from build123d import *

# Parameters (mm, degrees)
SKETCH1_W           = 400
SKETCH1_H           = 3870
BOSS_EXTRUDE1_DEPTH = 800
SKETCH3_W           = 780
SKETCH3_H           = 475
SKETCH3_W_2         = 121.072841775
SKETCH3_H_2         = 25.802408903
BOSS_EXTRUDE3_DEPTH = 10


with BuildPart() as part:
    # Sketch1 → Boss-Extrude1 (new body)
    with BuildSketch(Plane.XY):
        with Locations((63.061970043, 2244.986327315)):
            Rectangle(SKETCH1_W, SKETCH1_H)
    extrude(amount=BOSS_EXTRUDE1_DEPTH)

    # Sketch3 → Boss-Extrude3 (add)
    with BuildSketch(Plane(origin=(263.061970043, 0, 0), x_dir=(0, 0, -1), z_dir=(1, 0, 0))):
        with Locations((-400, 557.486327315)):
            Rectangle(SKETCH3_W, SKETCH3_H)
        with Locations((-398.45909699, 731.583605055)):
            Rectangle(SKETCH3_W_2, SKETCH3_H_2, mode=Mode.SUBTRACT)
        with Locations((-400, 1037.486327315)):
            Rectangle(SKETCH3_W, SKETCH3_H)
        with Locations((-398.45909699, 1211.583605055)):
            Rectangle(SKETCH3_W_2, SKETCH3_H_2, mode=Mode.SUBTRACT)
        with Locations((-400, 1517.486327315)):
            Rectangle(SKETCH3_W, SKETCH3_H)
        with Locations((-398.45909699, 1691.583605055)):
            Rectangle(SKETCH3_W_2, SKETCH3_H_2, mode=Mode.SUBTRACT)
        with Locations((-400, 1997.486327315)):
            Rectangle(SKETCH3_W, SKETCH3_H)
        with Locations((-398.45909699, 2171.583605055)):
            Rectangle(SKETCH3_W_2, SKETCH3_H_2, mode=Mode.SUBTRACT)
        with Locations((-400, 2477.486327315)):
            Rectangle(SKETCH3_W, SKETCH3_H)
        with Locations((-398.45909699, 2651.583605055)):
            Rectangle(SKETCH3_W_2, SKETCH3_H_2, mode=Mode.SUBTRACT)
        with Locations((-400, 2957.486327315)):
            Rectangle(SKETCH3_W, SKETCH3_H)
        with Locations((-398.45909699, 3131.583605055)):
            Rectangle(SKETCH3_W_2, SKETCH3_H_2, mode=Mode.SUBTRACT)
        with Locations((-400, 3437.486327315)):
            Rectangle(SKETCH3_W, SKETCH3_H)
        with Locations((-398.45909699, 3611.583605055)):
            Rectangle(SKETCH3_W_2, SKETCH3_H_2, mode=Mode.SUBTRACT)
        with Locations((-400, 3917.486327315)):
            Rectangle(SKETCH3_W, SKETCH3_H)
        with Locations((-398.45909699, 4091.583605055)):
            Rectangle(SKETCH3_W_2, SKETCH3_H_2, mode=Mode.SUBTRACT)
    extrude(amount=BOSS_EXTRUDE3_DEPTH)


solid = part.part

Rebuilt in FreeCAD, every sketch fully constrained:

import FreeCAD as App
import Part
import Sketcher
from FreeCAD import Vector
Q = App.Units.Quantity

doc = App.newDocument("Part")
body = doc.addObject("PartDesign::Body", "Body")

sketch1 = body.newObject("Sketcher::SketchObject", "Sketch")
sketch1.AttachmentSupport = (doc.getObject("XY_Plane"), [""])
sketch1.MapMode = "FlatFace"
sketch1.addGeometry(Part.LineSegment(Vector(-137, 4180, 0), Vector(-137, 310, 0)), False)
sketch1.addGeometry(Part.LineSegment(Vector(-137, 310, 0), Vector(263, 310, 0)), False)
sketch1.addGeometry(Part.LineSegment(Vector(263, 310, 0), Vector(263, 4180, 0)), False)
sketch1.addGeometry(Part.LineSegment(Vector(263, 4180, 0), Vector(-137, 4180, 0)), False)
sketch1.addConstraint(Sketcher.Constraint("Coincident", 0, 2, 1, 1))
sketch1.addConstraint(Sketcher.Constraint("Coincident", 1, 2, 2, 1))
sketch1.addConstraint(Sketcher.Constraint("Coincident", 2, 2, 3, 1))
sketch1.addConstraint(Sketcher.Constraint("Coincident", 3, 2, 0, 1))
sketch1.addConstraint(Sketcher.Constraint("Vertical", 0))
sketch1.addConstraint(Sketcher.Constraint("Horizontal", 1))
sketch1.addConstraint(Sketcher.Constraint("Vertical", 2))
sketch1.addConstraint(Sketcher.Constraint("Horizontal", 3))
sketch1.addConstraint(Sketcher.Constraint("DistanceX", 1, 1, 1, 2, Q("400 mm")))
sketch1.addConstraint(Sketcher.Constraint("DistanceY", 0, 2, 0, 1, Q("3870 mm")))
sketch1.addConstraint(Sketcher.Constraint("DistanceX", 0, 2, -1, 1, Q("136.93803 mm")))
sketch1.addConstraint(Sketcher.Constraint("DistanceY", -1, 1, 0, 2, Q("309.986327 mm")))
pad1 = body.newObject("PartDesign::Pad", "Pad")
pad1.Profile = sketch1
pad1.Length = 800

sketch2 = body.newObject("Sketcher::SketchObject", "Sketch001")
sketch2.AttachmentSupport = (doc.getObject("YZ_Plane"), [""])
sketch2.MapMode = "FlatFace"
sketch2.AttachmentOffset = App.Placement(Vector(0, 0, 263.06197), App.Rotation())
sketch2.addGeometry(Part.LineSegment(Vector(795, 790, 0), Vector(320, 790, 0)), False)
sketch2.addGeometry(Part.LineSegment(Vector(320, 790, 0), Vector(320, 10, 0)), False)
sketch2.addGeometry(Part.LineSegment(Vector(320, 10, 0), Vector(795, 10, 0)), False)
sketch2.addGeometry(Part.LineSegment(Vector(795, 10, 0), Vector(795, 790, 0)), False)
sketch2.addGeometry(Part.LineSegment(Vector(719, 338, 0), Vector(719, 459, 0)), False)
sketch2.addGeometry(Part.LineSegment(Vector(719, 459, 0), Vector(744, 459, 0)), False)
sketch2.addGeometry(Part.LineSegment(Vector(744, 459, 0), Vector(744, 338, 0)), False)
sketch2.addGeometry(Part.LineSegment(Vector(744, 338, 0), Vector(719, 338, 0)), False)
sketch2.addGeometry(Part.LineSegment(Vector(1275, 790, 0), Vector(800, 790, 0)), False)
sketch2.addGeometry(Part.LineSegment(Vector(800, 790, 0), Vector(800, 10, 0)), False)
sketch2.addGeometry(Part.LineSegment(Vector(800, 10, 0), Vector(1275, 10, 0)), False)
sketch2.addGeometry(Part.LineSegment(Vector(1275, 10, 0), Vector(1275, 790, 0)), False)
sketch2.addGeometry(Part.LineSegment(Vector(1199, 338, 0), Vector(1199, 459, 0)), False)
sketch2.addGeometry(Part.LineSegment(Vector(1199, 459, 0), Vector(1224, 459, 0)), False)
sketch2.addGeometry(Part.LineSegment(Vector(1224, 459, 0), Vector(1224, 338, 0)), False)
sketch2.addGeometry(Part.LineSegment(Vector(1224, 338, 0), Vector(1199, 338, 0)), False)
sketch2.addGeometry(Part.LineSegment(Vector(1755, 790, 0), Vector(1280, 790, 0)), False)
sketch2.addGeometry(Part.LineSegment(Vector(1280, 790, 0), Vector(1280, 10, 0)), False)
sketch2.addGeometry(Part.LineSegment(Vector(1280, 10, 0), Vector(1755, 10, 0)), False)
sketch2.addGeometry(Part.LineSegment(Vector(1755, 10, 0), Vector(1755, 790, 0)), False)
sketch2.addGeometry(Part.LineSegment(Vector(1679, 338, 0), Vector(1679, 459, 0)), False)
sketch2.addGeometry(Part.LineSegment(Vector(1679, 459, 0), Vector(1704, 459, 0)), False)
sketch2.addGeometry(Part.LineSegment(Vector(1704, 459, 0), Vector(1704, 338, 0)), False)
sketch2.addGeometry(Part.LineSegment(Vector(1704, 338, 0), Vector(1679, 338, 0)), False)
sketch2.addGeometry(Part.LineSegment(Vector(2235, 790, 0), Vector(1760, 790, 0)), False)
sketch2.addGeometry(Part.LineSegment(Vector(1760, 790, 0), Vector(1760, 10, 0)), False)
sketch2.addGeometry(Part.LineSegment(Vector(1760, 10, 0), Vector(2235, 10, 0)), False)
sketch2.addGeometry(Part.LineSegment(Vector(2235, 10, 0), Vector(2235, 790, 0)), False)
sketch2.addGeometry(Part.LineSegment(Vector(2159, 338, 0), Vector(2159, 459, 0)), False)
sketch2.addGeometry(Part.LineSegment(Vector(2159, 459, 0), Vector(2184, 459, 0)), False)
sketch2.addGeometry(Part.LineSegment(Vector(2184, 459, 0), Vector(2184, 338, 0)), False)
sketch2.addGeometry(Part.LineSegment(Vector(2184, 338, 0), Vector(2159, 338, 0)), False)
sketch2.addGeometry(Part.LineSegment(Vector(2715, 790, 0), Vector(2240, 790, 0)), False)
sketch2.addGeometry(Part.LineSegment(Vector(2240, 790, 0), Vector(2240, 10, 0)), False)
sketch2.addGeometry(Part.LineSegment(Vector(2240, 10, 0), Vector(2715, 10, 0)), False)
sketch2.addGeometry(Part.LineSegment(Vector(2715, 10, 0), Vector(2715, 790, 0)), False)
sketch2.addGeometry(Part.LineSegment(Vector(2639, 338, 0), Vector(2639, 459, 0)), False)
sketch2.addGeometry(Part.LineSegment(Vector(2639, 459, 0), Vector(2664, 459, 0)), False)
sketch2.addGeometry(Part.LineSegment(Vector(2664, 459, 0), Vector(2664, 338, 0)), False)
sketch2.addGeometry(Part.LineSegment(Vector(2664, 338, 0), Vector(2639, 338, 0)), False)
sketch2.addGeometry(Part.LineSegment(Vector(3195, 790, 0), Vector(2720, 790, 0)), False)
sketch2.addGeometry(Part.LineSegment(Vector(2720, 790, 0), Vector(2720, 10, 0)), False)
sketch2.addGeometry(Part.LineSegment(Vector(2720, 10, 0), Vector(3195, 10, 0)), False)
sketch2.addGeometry(Part.LineSegment(Vector(3195, 10, 0), Vector(3195, 790, 0)), False)
sketch2.addGeometry(Part.LineSegment(Vector(3119, 338, 0), Vector(3119, 459, 0)), False)
sketch2.addGeometry(Part.LineSegment(Vector(3119, 459, 0), Vector(3144, 459, 0)), False)
sketch2.addGeometry(Part.LineSegment(Vector(3144, 459, 0), Vector(3144, 338, 0)), False)
sketch2.addGeometry(Part.LineSegment(Vector(3144, 338, 0), Vector(3119, 338, 0)), False)
sketch2.addGeometry(Part.LineSegment(Vector(3675, 790, 0), Vector(3200, 790, 0)), False)
sketch2.addGeometry(Part.LineSegment(Vector(3200, 790, 0), Vector(3200, 10, 0)), False)
sketch2.addGeometry(Part.LineSegment(Vector(3200, 10, 0), Vector(3675, 10, 0)), False)
sketch2.addGeometry(Part.LineSegment(Vector(3675, 10, 0), Vector(3675, 790, 0)), False)
sketch2.addGeometry(Part.LineSegment(Vector(3599, 338, 0), Vector(3599, 459, 0)), False)
sketch2.addGeometry(Part.LineSegment(Vector(3599, 459, 0), Vector(3624, 459, 0)), False)
sketch2.addGeometry(Part.LineSegment(Vector(3624, 459, 0), Vector(3624, 338, 0)), False)
sketch2.addGeometry(Part.LineSegment(Vector(3624, 338, 0), Vector(3599, 338, 0)), False)
sketch2.addGeometry(Part.LineSegment(Vector(4155, 790, 0), Vector(3680, 790, 0)), False)
sketch2.addGeometry(Part.LineSegment(Vector(3680, 790, 0), Vector(3680, 10, 0)), False)
sketch2.addGeometry(Part.LineSegment(Vector(3680, 10, 0), Vector(4155, 10, 0)), False)
sketch2.addGeometry(Part.LineSegment(Vector(4155, 10, 0), Vector(4155, 790, 0)), False)
sketch2.addGeometry(Part.LineSegment(Vector(4079, 338, 0), Vector(4079, 459, 0)), False)
sketch2.addGeometry(Part.LineSegment(Vector(4079, 459, 0), Vector(4104, 459, 0)), False)
sketch2.addGeometry(Part.LineSegment(Vector(4104, 459, 0), Vector(4104, 338, 0)), False)
sketch2.addGeometry(Part.LineSegment(Vector(4104, 338, 0), Vector(4079, 338, 0)), False)
sketch2.addConstraint(Sketcher.Constraint("Coincident", 0, 2, 1, 1))
sketch2.addConstraint(Sketcher.Constraint("Coincident", 1, 2, 2, 1))
sketch2.addConstraint(Sketcher.Constraint("Coincident", 2, 2, 3, 1))
sketch2.addConstraint(Sketcher.Constraint("Coincident", 3, 2, 0, 1))
sketch2.addConstraint(Sketcher.Constraint("Coincident", 4, 2, 5, 1))
sketch2.addConstraint(Sketcher.Constraint("Coincident", 5, 2, 6, 1))
sketch2.addConstraint(Sketcher.Constraint("Coincident", 6, 2, 7, 1))
sketch2.addConstraint(Sketcher.Constraint("Coincident", 7, 2, 4, 1))
sketch2.addConstraint(Sketcher.Constraint("Coincident", 8, 2, 9, 1))
sketch2.addConstraint(Sketcher.Constraint("Coincident", 9, 2, 10, 1))
sketch2.addConstraint(Sketcher.Constraint("Coincident", 10, 2, 11, 1))
sketch2.addConstraint(Sketcher.Constraint("Coincident", 11, 2, 8, 1))
sketch2.addConstraint(Sketcher.Constraint("Coincident", 12, 2, 13, 1))
sketch2.addConstraint(Sketcher.Constraint("Coincident", 13, 2, 14, 1))
sketch2.addConstraint(Sketcher.Constraint("Coincident", 14, 2, 15, 1))
sketch2.addConstraint(Sketcher.Constraint("Coincident", 15, 2, 12, 1))
sketch2.addConstraint(Sketcher.Constraint("Coincident", 16, 2, 17, 1))
sketch2.addConstraint(Sketcher.Constraint("Coincident", 17, 2, 18, 1))
sketch2.addConstraint(Sketcher.Constraint("Coincident", 18, 2, 19, 1))
sketch2.addConstraint(Sketcher.Constraint("Coincident", 19, 2, 16, 1))
sketch2.addConstraint(Sketcher.Constraint("Coincident", 20, 2, 21, 1))
sketch2.addConstraint(Sketcher.Constraint("Coincident", 21, 2, 22, 1))
sketch2.addConstraint(Sketcher.Constraint("Coincident", 22, 2, 23, 1))
sketch2.addConstraint(Sketcher.Constraint("Coincident", 23, 2, 20, 1))
sketch2.addConstraint(Sketcher.Constraint("Coincident", 24, 2, 25, 1))
sketch2.addConstraint(Sketcher.Constraint("Coincident", 25, 2, 26, 1))
sketch2.addConstraint(Sketcher.Constraint("Coincident", 26, 2, 27, 1))
sketch2.addConstraint(Sketcher.Constraint("Coincident", 27, 2, 24, 1))
sketch2.addConstraint(Sketcher.Constraint("Coincident", 28, 2, 29, 1))
sketch2.addConstraint(Sketcher.Constraint("Coincident", 29, 2, 30, 1))
sketch2.addConstraint(Sketcher.Constraint("Coincident", 30, 2, 31, 1))
sketch2.addConstraint(Sketcher.Constraint("Coincident", 31, 2, 28, 1))
sketch2.addConstraint(Sketcher.Constraint("Coincident", 32, 2, 33, 1))
sketch2.addConstraint(Sketcher.Constraint("Coincident", 33, 2, 34, 1))
sketch2.addConstraint(Sketcher.Constraint("Coincident", 34, 2, 35, 1))
sketch2.addConstraint(Sketcher.Constraint("Coincident", 35, 2, 32, 1))
sketch2.addConstraint(Sketcher.Constraint("Coincident", 36, 2, 37, 1))
sketch2.addConstraint(Sketcher.Constraint("Coincident", 37, 2, 38, 1))
sketch2.addConstraint(Sketcher.Constraint("Coincident", 38, 2, 39, 1))
sketch2.addConstraint(Sketcher.Constraint("Coincident", 39, 2, 36, 1))
sketch2.addConstraint(Sketcher.Constraint("Coincident", 40, 2, 41, 1))
sketch2.addConstraint(Sketcher.Constraint("Coincident", 41, 2, 42, 1))
sketch2.addConstraint(Sketcher.Constraint("Coincident", 42, 2, 43, 1))
sketch2.addConstraint(Sketcher.Constraint("Coincident", 43, 2, 40, 1))
sketch2.addConstraint(Sketcher.Constraint("Coincident", 44, 2, 45, 1))
sketch2.addConstraint(Sketcher.Constraint("Coincident", 45, 2, 46, 1))
sketch2.addConstraint(Sketcher.Constraint("Coincident", 46, 2, 47, 1))
sketch2.addConstraint(Sketcher.Constraint("Coincident", 47, 2, 44, 1))
sketch2.addConstraint(Sketcher.Constraint("Coincident", 48, 2, 49, 1))
sketch2.addConstraint(Sketcher.Constraint("Coincident", 49, 2, 50, 1))
sketch2.addConstraint(Sketcher.Constraint("Coincident", 50, 2, 51, 1))
sketch2.addConstraint(Sketcher.Constraint("Coincident", 51, 2, 48, 1))
sketch2.addConstraint(Sketcher.Constraint("Coincident", 52, 2, 53, 1))
sketch2.addConstraint(Sketcher.Constraint("Coincident", 53, 2, 54, 1))
sketch2.addConstraint(Sketcher.Constraint("Coincident", 54, 2, 55, 1))
sketch2.addConstraint(Sketcher.Constraint("Coincident", 55, 2, 52, 1))
sketch2.addConstraint(Sketcher.Constraint("Coincident", 56, 2, 57, 1))
sketch2.addConstraint(Sketcher.Constraint("Coincident", 57, 2, 58, 1))
sketch2.addConstraint(Sketcher.Constraint("Coincident", 58, 2, 59, 1))
sketch2.addConstraint(Sketcher.Constraint("Coincident", 59, 2, 56, 1))
sketch2.addConstraint(Sketcher.Constraint("Coincident", 60, 2, 61, 1))
sketch2.addConstraint(Sketcher.Constraint("Coincident", 61, 2, 62, 1))
sketch2.addConstraint(Sketcher.Constraint("Coincident", 62, 2, 63, 1))
sketch2.addConstraint(Sketcher.Constraint("Coincident", 63, 2, 60, 1))
sketch2.addConstraint(Sketcher.Constraint("Horizontal", 0))
sketch2.addConstraint(Sketcher.Constraint("Vertical", 1))
sketch2.addConstraint(Sketcher.Constraint("Horizontal", 2))
sketch2.addConstraint(Sketcher.Constraint("Vertical", 3))
sketch2.addConstraint(Sketcher.Constraint("Vertical", 4))
sketch2.addConstraint(Sketcher.Constraint("Horizontal", 5))
sketch2.addConstraint(Sketcher.Constraint("Vertical", 6))
sketch2.addConstraint(Sketcher.Constraint("Horizontal", 7))
sketch2.addConstraint(Sketcher.Constraint("Horizontal", 8))
sketch2.addConstraint(Sketcher.Constraint("Vertical", 9))
sketch2.addConstraint(Sketcher.Constraint("Horizontal", 10))
sketch2.addConstraint(Sketcher.Constraint("Vertical", 11))
sketch2.addConstraint(Sketcher.Constraint("Vertical", 12))
sketch2.addConstraint(Sketcher.Constraint("Horizontal", 13))
sketch2.addConstraint(Sketcher.Constraint("Vertical", 14))
sketch2.addConstraint(Sketcher.Constraint("Horizontal", 15))
sketch2.addConstraint(Sketcher.Constraint("Horizontal", 16))
sketch2.addConstraint(Sketcher.Constraint("Vertical", 17))
sketch2.addConstraint(Sketcher.Constraint("Horizontal", 18))
sketch2.addConstraint(Sketcher.Constraint("Vertical", 19))
sketch2.addConstraint(Sketcher.Constraint("Vertical", 20))
sketch2.addConstraint(Sketcher.Constraint("Horizontal", 21))
sketch2.addConstraint(Sketcher.Constraint("Vertical", 22))
sketch2.addConstraint(Sketcher.Constraint("Horizontal", 23))
sketch2.addConstraint(Sketcher.Constraint("Horizontal", 24))
sketch2.addConstraint(Sketcher.Constraint("Vertical", 25))
sketch2.addConstraint(Sketcher.Constraint("Horizontal", 26))
sketch2.addConstraint(Sketcher.Constraint("Vertical", 27))
sketch2.addConstraint(Sketcher.Constraint("Vertical", 28))
sketch2.addConstraint(Sketcher.Constraint("Horizontal", 29))
sketch2.addConstraint(Sketcher.Constraint("Vertical", 30))
sketch2.addConstraint(Sketcher.Constraint("Horizontal", 31))
sketch2.addConstraint(Sketcher.Constraint("Horizontal", 32))
sketch2.addConstraint(Sketcher.Constraint("Vertical", 33))
sketch2.addConstraint(Sketcher.Constraint("Horizontal", 34))
sketch2.addConstraint(Sketcher.Constraint("Vertical", 35))
sketch2.addConstraint(Sketcher.Constraint("Vertical", 36))
sketch2.addConstraint(Sketcher.Constraint("Horizontal", 37))
sketch2.addConstraint(Sketcher.Constraint("Vertical", 38))
sketch2.addConstraint(Sketcher.Constraint("Horizontal", 39))
sketch2.addConstraint(Sketcher.Constraint("Horizontal", 40))
sketch2.addConstraint(Sketcher.Constraint("Vertical", 41))
sketch2.addConstraint(Sketcher.Constraint("Horizontal", 42))
sketch2.addConstraint(Sketcher.Constraint("Vertical", 43))
sketch2.addConstraint(Sketcher.Constraint("Vertical", 44))
sketch2.addConstraint(Sketcher.Constraint("Horizontal", 45))
sketch2.addConstraint(Sketcher.Constraint("Vertical", 46))
sketch2.addConstraint(Sketcher.Constraint("Horizontal", 47))
sketch2.addConstraint(Sketcher.Constraint("Horizontal", 48))
sketch2.addConstraint(Sketcher.Constraint("Vertical", 49))
sketch2.addConstraint(Sketcher.Constraint("Horizontal", 50))
sketch2.addConstraint(Sketcher.Constraint("Vertical", 51))
sketch2.addConstraint(Sketcher.Constraint("Vertical", 52))
sketch2.addConstraint(Sketcher.Constraint("Horizontal", 53))
sketch2.addConstraint(Sketcher.Constraint("Vertical", 54))
sketch2.addConstraint(Sketcher.Constraint("Horizontal", 55))
sketch2.addConstraint(Sketcher.Constraint("Horizontal", 56))
sketch2.addConstraint(Sketcher.Constraint("Vertical", 57))
sketch2.addConstraint(Sketcher.Constraint("Horizontal", 58))
sketch2.addConstraint(Sketcher.Constraint("Vertical", 59))
sketch2.addConstraint(Sketcher.Constraint("Vertical", 60))
sketch2.addConstraint(Sketcher.Constraint("Horizontal", 61))
sketch2.addConstraint(Sketcher.Constraint("Vertical", 62))
sketch2.addConstraint(Sketcher.Constraint("Horizontal", 63))
sketch2.addConstraint(Sketcher.Constraint("Horizontal", 3, 2, 8, 2))
sketch2.addConstraint(Sketcher.Constraint("Horizontal", 2, 2, 9, 2))
sketch2.addConstraint(Sketcher.Constraint("Horizontal", 5, 2, 12, 2))
sketch2.addConstraint(Sketcher.Constraint("Horizontal", 7, 2, 14, 2))
sketch2.addConstraint(Sketcher.Constraint("Horizontal", 11, 2, 16, 2))
sketch2.addConstraint(Sketcher.Constraint("Horizontal", 10, 2, 17, 2))
sketch2.addConstraint(Sketcher.Constraint("Horizontal", 13, 2, 20, 2))
sketch2.addConstraint(Sketcher.Constraint("Horizontal", 15, 2, 22, 2))
sketch2.addConstraint(Sketcher.Constraint("Horizontal", 19, 2, 24, 2))
sketch2.addConstraint(Sketcher.Constraint("Horizontal", 18, 2, 25, 2))
sketch2.addConstraint(Sketcher.Constraint("Horizontal", 21, 2, 28, 2))
sketch2.addConstraint(Sketcher.Constraint("Horizontal", 23, 2, 30, 2))
sketch2.addConstraint(Sketcher.Constraint("Horizontal", 27, 2, 32, 2))
sketch2.addConstraint(Sketcher.Constraint("Horizontal", 26, 2, 33, 2))
sketch2.addConstraint(Sketcher.Constraint("Horizontal", 29, 2, 36, 2))
sketch2.addConstraint(Sketcher.Constraint("Horizontal", 31, 2, 38, 2))
sketch2.addConstraint(Sketcher.Constraint("Horizontal", 35, 2, 40, 2))
sketch2.addConstraint(Sketcher.Constraint("Horizontal", 34, 2, 41, 2))
sketch2.addConstraint(Sketcher.Constraint("Horizontal", 37, 2, 44, 2))
sketch2.addConstraint(Sketcher.Constraint("Horizontal", 39, 2, 46, 2))
sketch2.addConstraint(Sketcher.Constraint("Horizontal", 43, 2, 48, 2))
sketch2.addConstraint(Sketcher.Constraint("Horizontal", 42, 2, 49, 2))
sketch2.addConstraint(Sketcher.Constraint("Horizontal", 45, 2, 52, 2))
sketch2.addConstraint(Sketcher.Constraint("Horizontal", 47, 2, 54, 2))
sketch2.addConstraint(Sketcher.Constraint("Horizontal", 51, 2, 56, 2))
sketch2.addConstraint(Sketcher.Constraint("Horizontal", 50, 2, 57, 2))
sketch2.addConstraint(Sketcher.Constraint("Horizontal", 53, 2, 60, 2))
sketch2.addConstraint(Sketcher.Constraint("Horizontal", 55, 2, 62, 2))
sketch2.addConstraint(Sketcher.Constraint("Equal", 2, 8))
sketch2.addConstraint(Sketcher.Constraint("Equal", 7, 13))
sketch2.addConstraint(Sketcher.Constraint("Equal", 10, 16))
sketch2.addConstraint(Sketcher.Constraint("Equal", 15, 21))
sketch2.addConstraint(Sketcher.Constraint("Equal", 18, 24))
sketch2.addConstraint(Sketcher.Constraint("Equal", 23, 29))
sketch2.addConstraint(Sketcher.Constraint("Equal", 26, 32))
sketch2.addConstraint(Sketcher.Constraint("Equal", 31, 37))
sketch2.addConstraint(Sketcher.Constraint("Equal", 34, 40))
sketch2.addConstraint(Sketcher.Constraint("Equal", 39, 45))
sketch2.addConstraint(Sketcher.Constraint("Equal", 42, 48))
sketch2.addConstraint(Sketcher.Constraint("Equal", 47, 53))
sketch2.addConstraint(Sketcher.Constraint("Equal", 50, 56))
sketch2.addConstraint(Sketcher.Constraint("Equal", 55, 61))
sketch2.addConstraint(Sketcher.Constraint("DistanceX", 0, 2, 0, 1, Q("475 mm")))
sketch2.addConstraint(Sketcher.Constraint("DistanceY", 1, 2, 1, 1, Q("780 mm")))
sketch2.addConstraint(Sketcher.Constraint("DistanceY", -1, 1, 0, 2, Q("790 mm")))
sketch2.addConstraint(Sketcher.Constraint("DistanceX", 5, 1, 5, 2, Q("25.802409 mm")))
sketch2.addConstraint(Sketcher.Constraint("DistanceY", 4, 1, 4, 2, Q("121.072842 mm")))
sketch2.addConstraint(Sketcher.Constraint("DistanceX", -1, 1, 4, 2, Q("718.682401 mm")))
sketch2.addConstraint(Sketcher.Constraint("DistanceX", -1, 1, 12, 2, Q("1198.682401 mm")))
sketch2.addConstraint(Sketcher.Constraint("DistanceX", -1, 1, 20, 2, Q("1678.682401 mm")))
sketch2.addConstraint(Sketcher.Constraint("DistanceX", -1, 1, 28, 2, Q("2158.682401 mm")))
sketch2.addConstraint(Sketcher.Constraint("DistanceX", -1, 1, 36, 2, Q("2638.682401 mm")))
sketch2.addConstraint(Sketcher.Constraint("DistanceX", -1, 1, 44, 2, Q("3118.682401 mm")))
sketch2.addConstraint(Sketcher.Constraint("DistanceX", -1, 1, 52, 2, Q("3598.682401 mm")))
sketch2.addConstraint(Sketcher.Constraint("DistanceX", -1, 1, 60, 2, Q("4078.682401 mm")))
sketch2.addConstraint(Sketcher.Constraint("DistanceX", -1, 1, 0, 2, Q("319.986327 mm")))
sketch2.addConstraint(Sketcher.Constraint("DistanceY", -1, 1, 4, 2, Q("458.995518 mm")))
sketch2.addConstraint(Sketcher.Constraint("DistanceX", -1, 1, 8, 2, Q("799.986327 mm")))
sketch2.addConstraint(Sketcher.Constraint("DistanceX", -1, 1, 16, 2, Q("1279.986327 mm")))
sketch2.addConstraint(Sketcher.Constraint("DistanceX", -1, 1, 24, 2, Q("1759.986327 mm")))
sketch2.addConstraint(Sketcher.Constraint("DistanceX", -1, 1, 32, 2, Q("2239.986327 mm")))
sketch2.addConstraint(Sketcher.Constraint("DistanceX", -1, 1, 40, 2, Q("2719.986327 mm")))
sketch2.addConstraint(Sketcher.Constraint("DistanceX", -1, 1, 48, 2, Q("3199.986327 mm")))
sketch2.addConstraint(Sketcher.Constraint("DistanceX", -1, 1, 56, 2, Q("3679.986327 mm")))
pad2 = body.newObject("PartDesign::Pad", "Pad001")
pad2.Profile = sketch2
pad2.Length = 10

doc.recompute()
